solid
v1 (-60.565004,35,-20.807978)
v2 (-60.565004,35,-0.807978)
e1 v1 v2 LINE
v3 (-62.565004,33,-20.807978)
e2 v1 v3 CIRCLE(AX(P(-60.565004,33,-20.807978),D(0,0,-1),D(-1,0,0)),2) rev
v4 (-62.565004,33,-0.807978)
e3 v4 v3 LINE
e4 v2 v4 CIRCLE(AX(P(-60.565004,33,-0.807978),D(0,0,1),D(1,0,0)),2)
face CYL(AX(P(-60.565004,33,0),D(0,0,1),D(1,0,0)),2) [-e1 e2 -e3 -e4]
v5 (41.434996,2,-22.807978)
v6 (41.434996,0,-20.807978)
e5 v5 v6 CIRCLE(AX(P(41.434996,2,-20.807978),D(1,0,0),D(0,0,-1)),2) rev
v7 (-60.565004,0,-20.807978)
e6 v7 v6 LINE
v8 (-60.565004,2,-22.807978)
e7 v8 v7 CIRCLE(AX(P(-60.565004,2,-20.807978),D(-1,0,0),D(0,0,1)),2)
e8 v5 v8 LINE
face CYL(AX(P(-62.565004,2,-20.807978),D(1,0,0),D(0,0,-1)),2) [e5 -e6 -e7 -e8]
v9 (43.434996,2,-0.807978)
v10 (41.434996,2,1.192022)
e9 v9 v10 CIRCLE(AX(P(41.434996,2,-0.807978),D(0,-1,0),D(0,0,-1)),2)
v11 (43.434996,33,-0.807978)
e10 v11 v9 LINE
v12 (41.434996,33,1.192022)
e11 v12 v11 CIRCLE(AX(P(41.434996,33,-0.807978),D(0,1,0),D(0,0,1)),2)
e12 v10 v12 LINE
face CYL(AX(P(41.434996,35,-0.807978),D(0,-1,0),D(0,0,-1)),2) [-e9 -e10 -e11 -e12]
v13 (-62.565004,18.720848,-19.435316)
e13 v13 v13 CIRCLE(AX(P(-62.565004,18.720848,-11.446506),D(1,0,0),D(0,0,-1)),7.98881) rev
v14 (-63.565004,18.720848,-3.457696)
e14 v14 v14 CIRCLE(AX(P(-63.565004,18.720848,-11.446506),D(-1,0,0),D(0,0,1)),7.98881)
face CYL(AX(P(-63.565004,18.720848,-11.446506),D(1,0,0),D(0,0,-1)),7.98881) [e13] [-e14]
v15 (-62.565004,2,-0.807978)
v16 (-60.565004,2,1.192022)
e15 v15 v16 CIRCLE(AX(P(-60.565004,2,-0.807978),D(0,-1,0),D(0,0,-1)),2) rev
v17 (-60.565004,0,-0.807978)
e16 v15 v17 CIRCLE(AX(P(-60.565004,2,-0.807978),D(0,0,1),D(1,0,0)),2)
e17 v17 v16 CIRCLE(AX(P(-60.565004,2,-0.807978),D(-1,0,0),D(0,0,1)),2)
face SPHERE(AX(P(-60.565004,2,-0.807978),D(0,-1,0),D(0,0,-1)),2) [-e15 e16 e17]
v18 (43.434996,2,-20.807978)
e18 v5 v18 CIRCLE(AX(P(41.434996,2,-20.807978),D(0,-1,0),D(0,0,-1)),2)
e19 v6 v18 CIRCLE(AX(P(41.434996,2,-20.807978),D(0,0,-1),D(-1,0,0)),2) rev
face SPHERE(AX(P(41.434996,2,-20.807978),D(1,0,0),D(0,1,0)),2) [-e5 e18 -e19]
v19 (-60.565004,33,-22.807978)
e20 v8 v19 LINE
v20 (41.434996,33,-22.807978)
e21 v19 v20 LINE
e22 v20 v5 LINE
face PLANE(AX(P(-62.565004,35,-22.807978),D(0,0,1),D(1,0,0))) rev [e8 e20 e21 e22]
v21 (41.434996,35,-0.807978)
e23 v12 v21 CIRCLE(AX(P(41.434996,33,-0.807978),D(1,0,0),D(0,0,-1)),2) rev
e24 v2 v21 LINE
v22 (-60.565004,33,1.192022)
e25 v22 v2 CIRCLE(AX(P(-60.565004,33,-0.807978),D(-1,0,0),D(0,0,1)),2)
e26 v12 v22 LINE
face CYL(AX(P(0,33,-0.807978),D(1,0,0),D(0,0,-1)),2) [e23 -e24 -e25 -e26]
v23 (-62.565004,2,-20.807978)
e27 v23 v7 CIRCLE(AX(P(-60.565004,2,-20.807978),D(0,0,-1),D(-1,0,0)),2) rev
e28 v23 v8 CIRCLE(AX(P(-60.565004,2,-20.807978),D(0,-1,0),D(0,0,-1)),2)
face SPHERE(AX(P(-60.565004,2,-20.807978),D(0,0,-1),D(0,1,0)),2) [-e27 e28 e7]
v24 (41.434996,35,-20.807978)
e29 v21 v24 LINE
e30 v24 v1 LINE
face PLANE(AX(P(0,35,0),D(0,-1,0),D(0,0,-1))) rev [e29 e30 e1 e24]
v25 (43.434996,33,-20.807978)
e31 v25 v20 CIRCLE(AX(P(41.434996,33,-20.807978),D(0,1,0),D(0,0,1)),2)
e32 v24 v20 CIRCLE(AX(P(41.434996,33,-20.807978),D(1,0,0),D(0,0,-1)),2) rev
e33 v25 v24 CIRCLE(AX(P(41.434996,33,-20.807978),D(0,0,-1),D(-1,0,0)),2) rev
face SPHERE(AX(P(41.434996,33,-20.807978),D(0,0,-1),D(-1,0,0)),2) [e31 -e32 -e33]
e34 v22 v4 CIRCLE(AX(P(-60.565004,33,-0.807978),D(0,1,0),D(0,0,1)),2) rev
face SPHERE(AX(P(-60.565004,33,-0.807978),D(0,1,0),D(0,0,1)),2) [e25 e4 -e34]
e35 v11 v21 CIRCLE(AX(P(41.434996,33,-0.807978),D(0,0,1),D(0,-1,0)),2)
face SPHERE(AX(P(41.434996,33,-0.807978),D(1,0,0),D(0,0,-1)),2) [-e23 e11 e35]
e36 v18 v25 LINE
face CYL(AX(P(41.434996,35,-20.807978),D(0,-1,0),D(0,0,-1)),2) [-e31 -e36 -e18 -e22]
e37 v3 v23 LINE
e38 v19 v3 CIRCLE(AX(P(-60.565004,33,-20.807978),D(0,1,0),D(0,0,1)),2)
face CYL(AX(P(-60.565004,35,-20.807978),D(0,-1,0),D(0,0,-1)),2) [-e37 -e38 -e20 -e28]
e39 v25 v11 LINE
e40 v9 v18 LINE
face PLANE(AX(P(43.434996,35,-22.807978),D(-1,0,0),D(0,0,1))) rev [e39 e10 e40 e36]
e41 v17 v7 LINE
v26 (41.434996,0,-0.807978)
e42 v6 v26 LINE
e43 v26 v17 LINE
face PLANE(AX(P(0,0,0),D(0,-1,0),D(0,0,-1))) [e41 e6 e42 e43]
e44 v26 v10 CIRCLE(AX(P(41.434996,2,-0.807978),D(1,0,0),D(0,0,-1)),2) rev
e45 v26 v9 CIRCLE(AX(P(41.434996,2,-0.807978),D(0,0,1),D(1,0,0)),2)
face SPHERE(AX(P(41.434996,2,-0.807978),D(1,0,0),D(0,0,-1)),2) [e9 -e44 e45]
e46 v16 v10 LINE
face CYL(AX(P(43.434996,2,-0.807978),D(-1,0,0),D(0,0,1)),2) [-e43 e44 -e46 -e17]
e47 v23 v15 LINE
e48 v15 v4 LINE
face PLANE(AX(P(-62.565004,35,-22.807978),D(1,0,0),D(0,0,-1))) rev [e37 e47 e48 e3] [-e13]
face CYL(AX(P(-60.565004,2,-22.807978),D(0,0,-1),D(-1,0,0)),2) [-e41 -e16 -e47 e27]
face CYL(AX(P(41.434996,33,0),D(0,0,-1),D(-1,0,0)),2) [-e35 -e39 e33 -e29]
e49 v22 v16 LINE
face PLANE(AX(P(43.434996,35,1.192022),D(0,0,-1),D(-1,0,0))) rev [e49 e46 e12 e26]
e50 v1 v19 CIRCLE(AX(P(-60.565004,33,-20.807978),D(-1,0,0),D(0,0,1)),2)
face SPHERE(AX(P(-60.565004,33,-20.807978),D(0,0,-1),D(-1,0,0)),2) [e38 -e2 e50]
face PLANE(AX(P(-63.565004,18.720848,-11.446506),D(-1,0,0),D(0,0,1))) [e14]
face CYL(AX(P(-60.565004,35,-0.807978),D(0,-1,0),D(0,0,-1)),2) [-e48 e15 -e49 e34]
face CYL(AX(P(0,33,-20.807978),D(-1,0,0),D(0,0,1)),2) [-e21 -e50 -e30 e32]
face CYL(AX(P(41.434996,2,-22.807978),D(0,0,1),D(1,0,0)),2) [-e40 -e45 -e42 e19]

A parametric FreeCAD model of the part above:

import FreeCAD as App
import Part
import Sketcher

V = App.Vector
Q = App.Units.Quantity

doc = App.newDocument("Part")
params = doc.addObject("Spreadsheet::Sheet", "Params")
for row, (alias, value) in enumerate([
    ("sketch1_width", "106 mm"),
    ("sketch1_height", "24 mm"),
    ("pad1_length", "35 mm"),
    ("fillet_radius", "2 mm"),
    ("pad2_length", "1 mm"),
], start=1):
    params.set(f"A{row}", alias)
    params.set(f"B{row}", "=" + value)
    params.setAlias(f"B{row}", alias)

body = doc.addObject("PartDesign::Body", "Body")

# Sketch on XZ plane
sketch1 = doc.addObject("Sketcher::SketchObject", "Sketch")
body.addObject(sketch1)
sketch1.AttachmentSupport = (doc.XZ_Plane, [""])
sketch1.MapMode = "FlatFace"
sketch1.addGeometry([
    Part.LineSegment(V(-63, -23, 0), V(-63, 1, 0)),
    Part.LineSegment(V(-63, 1, 0), V(43, 1, 0)),
    Part.LineSegment(V(43, 1, 0), V(43, -23, 0)),
    Part.LineSegment(V(43, -23, 0), V(-63, -23, 0)),
], False)
sketch1.addConstraint([
    Sketcher.Constraint("Coincident", 0, 2, 1, 1),
    Sketcher.Constraint("Coincident", 1, 2, 2, 1),
    Sketcher.Constraint("Coincident", 2, 2, 3, 1),
    Sketcher.Constraint("Coincident", 3, 2, 0, 1),
    Sketcher.Constraint("Vertical", 0),
    Sketcher.Constraint("Horizontal", 1),
    Sketcher.Constraint("Vertical", 2),
    Sketcher.Constraint("Horizontal", 3),
    Sketcher.Constraint("DistanceX", 1, 1, 1, 2, Q("106 mm")),
    Sketcher.Constraint("DistanceY", 0, 1, 0, 2, Q("24 mm")),
    Sketcher.Constraint("DistanceY", -1, 1, 0, 2, Q("1.192022 mm")),
    Sketcher.Constraint("DistanceX", 0, 2, -1, 1, Q("62.565004 mm")),
])
sketch1.setExpression("Constraints[8]", "Params.sketch1_width")
sketch1.setExpression("Constraints[9]", "Params.sketch1_height")
pad1 = doc.addObject("PartDesign::Pad", "Pad")
body.addObject(pad1)
pad1.Profile = sketch1
pad1.setExpression("Length", "Params.pad1_length")
pad1.Reversed = True
doc.recompute()

fillet = doc.addObject("PartDesign::Fillet", "Fillet")
body.addObject(fillet)
fillet.Base = (pad1, ["Edge1"])
fillet.UseAllEdges = True
fillet.setExpression("Radius", "Params.fillet_radius")

# Sketch on YZ plane
sketch2 = doc.addObject("Sketcher::SketchObject", "Sketch001")
body.addObject(sketch2)
sketch2.AttachmentSupport = (doc.YZ_Plane, [""])
sketch2.MapMode = "FlatFace"
sketch2.AttachmentOffset = App.Placement(V(0, 0, -62.565004), App.Rotation())
sketch2.addGeometry(Part.Circle(V(19, -11, 0), V(0, 0, 1), 8), False)
sketch2.addConstraint([
    Sketcher.Constraint("Diameter", 0, Q("15.97762 mm")),
    Sketcher.Constraint("DistanceX", -1, 1, 0, 3, Q("18.720848 mm")),
    Sketcher.Constraint("DistanceY", 0, 3, -1, 1, Q("11.446506 mm")),
])
pad2 = doc.addObject("PartDesign::Pad", "Pad001")
body.addObject(pad2)
pad2.Profile = sketch2
pad2.setExpression("Length", "Params.pad2_length")
pad2.Reversed = True

doc.recompute()
